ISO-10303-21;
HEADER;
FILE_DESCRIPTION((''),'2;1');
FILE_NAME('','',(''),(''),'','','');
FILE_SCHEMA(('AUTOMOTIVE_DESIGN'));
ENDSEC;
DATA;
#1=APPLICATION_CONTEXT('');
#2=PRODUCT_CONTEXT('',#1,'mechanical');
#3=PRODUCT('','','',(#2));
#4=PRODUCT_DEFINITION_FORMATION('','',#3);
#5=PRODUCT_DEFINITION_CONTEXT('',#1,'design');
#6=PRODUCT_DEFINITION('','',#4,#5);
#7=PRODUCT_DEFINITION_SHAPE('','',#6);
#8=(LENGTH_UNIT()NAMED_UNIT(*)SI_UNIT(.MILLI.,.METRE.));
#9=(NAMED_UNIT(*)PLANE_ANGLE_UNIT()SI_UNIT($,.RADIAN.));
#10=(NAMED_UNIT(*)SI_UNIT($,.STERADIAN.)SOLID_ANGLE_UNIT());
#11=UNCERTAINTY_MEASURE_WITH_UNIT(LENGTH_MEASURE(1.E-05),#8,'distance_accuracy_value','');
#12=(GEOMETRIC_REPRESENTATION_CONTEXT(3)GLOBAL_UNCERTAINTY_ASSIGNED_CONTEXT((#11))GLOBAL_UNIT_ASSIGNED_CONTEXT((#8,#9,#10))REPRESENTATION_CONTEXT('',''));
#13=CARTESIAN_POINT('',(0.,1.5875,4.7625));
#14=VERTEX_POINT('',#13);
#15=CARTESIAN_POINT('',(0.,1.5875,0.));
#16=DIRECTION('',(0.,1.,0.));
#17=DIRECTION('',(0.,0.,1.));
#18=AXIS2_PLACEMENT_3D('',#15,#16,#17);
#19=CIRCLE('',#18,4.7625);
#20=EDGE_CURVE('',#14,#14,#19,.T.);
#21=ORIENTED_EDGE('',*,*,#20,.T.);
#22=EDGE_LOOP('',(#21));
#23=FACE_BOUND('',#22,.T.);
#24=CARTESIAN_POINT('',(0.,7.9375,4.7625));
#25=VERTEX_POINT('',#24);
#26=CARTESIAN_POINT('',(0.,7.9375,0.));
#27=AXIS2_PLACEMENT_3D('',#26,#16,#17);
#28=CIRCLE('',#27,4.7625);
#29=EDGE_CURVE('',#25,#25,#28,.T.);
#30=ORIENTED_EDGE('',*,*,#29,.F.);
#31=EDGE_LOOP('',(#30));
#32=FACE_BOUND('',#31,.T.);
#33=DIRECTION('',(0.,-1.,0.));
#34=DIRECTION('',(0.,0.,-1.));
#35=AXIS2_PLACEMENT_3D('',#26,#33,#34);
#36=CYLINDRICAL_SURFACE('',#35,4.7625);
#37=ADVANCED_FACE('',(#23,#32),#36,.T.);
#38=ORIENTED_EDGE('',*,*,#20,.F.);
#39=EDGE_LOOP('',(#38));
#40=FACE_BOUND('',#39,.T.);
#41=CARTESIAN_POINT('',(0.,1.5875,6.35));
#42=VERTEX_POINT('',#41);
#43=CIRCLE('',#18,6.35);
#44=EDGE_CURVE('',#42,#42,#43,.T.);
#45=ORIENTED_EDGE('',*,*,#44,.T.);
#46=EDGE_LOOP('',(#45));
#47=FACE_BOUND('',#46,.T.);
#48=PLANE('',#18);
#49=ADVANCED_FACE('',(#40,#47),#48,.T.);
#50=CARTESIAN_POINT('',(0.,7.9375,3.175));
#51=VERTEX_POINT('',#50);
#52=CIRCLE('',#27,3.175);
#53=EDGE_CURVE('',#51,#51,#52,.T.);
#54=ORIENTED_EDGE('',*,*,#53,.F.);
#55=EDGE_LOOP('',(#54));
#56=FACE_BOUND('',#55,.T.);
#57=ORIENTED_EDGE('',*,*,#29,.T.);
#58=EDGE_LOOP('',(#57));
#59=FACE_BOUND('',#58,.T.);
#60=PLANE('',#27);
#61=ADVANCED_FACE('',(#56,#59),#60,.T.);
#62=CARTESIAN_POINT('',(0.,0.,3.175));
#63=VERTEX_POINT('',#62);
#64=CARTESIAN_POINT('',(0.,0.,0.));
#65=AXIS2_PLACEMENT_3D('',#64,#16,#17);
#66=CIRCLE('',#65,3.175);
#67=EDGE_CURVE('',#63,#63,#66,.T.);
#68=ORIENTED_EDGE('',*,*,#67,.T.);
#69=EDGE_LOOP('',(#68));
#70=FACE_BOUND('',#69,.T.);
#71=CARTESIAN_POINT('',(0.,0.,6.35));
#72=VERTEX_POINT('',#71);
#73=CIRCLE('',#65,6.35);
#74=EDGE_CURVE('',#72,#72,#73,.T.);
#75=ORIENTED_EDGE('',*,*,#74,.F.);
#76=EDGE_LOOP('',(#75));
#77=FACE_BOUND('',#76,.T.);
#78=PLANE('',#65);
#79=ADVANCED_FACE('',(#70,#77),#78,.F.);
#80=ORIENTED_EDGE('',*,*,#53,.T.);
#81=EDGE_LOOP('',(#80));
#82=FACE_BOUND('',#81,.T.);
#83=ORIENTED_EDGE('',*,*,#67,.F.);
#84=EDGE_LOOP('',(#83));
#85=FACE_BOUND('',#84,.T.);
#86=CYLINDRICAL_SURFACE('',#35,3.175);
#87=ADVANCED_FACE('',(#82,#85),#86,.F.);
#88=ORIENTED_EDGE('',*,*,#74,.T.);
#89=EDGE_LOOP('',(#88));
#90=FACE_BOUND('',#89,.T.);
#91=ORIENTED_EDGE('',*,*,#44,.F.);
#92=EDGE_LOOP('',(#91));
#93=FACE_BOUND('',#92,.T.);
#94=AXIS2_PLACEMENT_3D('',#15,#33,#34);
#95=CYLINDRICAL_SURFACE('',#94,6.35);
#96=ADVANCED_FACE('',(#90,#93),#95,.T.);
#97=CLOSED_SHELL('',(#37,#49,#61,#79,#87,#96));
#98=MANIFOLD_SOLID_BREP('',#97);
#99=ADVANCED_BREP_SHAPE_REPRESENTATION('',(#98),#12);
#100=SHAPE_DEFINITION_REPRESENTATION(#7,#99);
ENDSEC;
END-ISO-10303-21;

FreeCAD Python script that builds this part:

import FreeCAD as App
import Part
import Sketcher

V = App.Vector
Q = App.Units.Quantity

doc = App.newDocument("Part")
params = doc.addObject("Spreadsheet::Sheet", "Params")
for row, (alias, value) in enumerate([
    ("sketch1_diameter", "0.25 in"),
    ("sketch1_diameter2", "0.375 in"),
    ("pad1_length", "0.3125 in"),
    ("sketch2_diameter", "0.5 in"),
    ("sketch2_diameter2", "0.375 in"),
    ("pad2_length", "0.0625 in"),
], start=1):
    params.set(f"A{row}", alias)
    params.set(f"B{row}", "=" + value)
    params.setAlias(f"B{row}", alias)

body = doc.addObject("PartDesign::Body", "Body")

# Sketch on XZ plane
sketch1 = body.newObject("Sketcher::SketchObject", "Sketch")
sketch1.AttachmentSupport = (doc.getObject("XZ_Plane"), [""])
sketch1.MapMode = "FlatFace"
sketch1.addGeometry([
    Part.Circle(V(0, 0, 0), V(0, 0, 1), 4.8),
    Part.Circle(V(0, 0, 0), V(0, 0, 1), 3.2),
], False)
sketch1.addConstraint([
    Sketcher.Constraint("Coincident", 0, 3, -1, 1),
    Sketcher.Constraint("Coincident", 1, 3, -1, 1),
    Sketcher.Constraint("Diameter", 1, Q("0.25 in")),
    Sketcher.Constraint("Diameter", 0, Q("0.375 in")),
])
sketch1.setExpression("Constraints[2]", "Params.sketch1_diameter")
sketch1.setExpression("Constraints[3]", "Params.sketch1_diameter2")
pad1 = body.newObject("PartDesign::Pad", "Pad")
pad1.Profile = sketch1
pad1.setExpression("Length", "Params.pad1_length")
pad1.Reversed = True

# Sketch on XZ plane
sketch2 = body.newObject("Sketcher::SketchObject", "Sketch001")
sketch2.AttachmentSupport = (doc.getObject("XZ_Plane"), [""])
sketch2.MapMode = "FlatFace"
sketch2.addGeometry([
    Part.Circle(V(0, 0, 0), V(0, 0, 1), 6.3),
    Part.Circle(V(0, 0, 0), V(0, 0, 1), 4.8),
], False)
sketch2.addConstraint([
    Sketcher.Constraint("Coincident", 0, 3, -1, 1),
    Sketcher.Constraint("Coincident", 1, 3, -1, 1),
    Sketcher.Constraint("Diameter", 0, Q("0.5 in")),
    Sketcher.Constraint("Diameter", 1, Q("0.375 in")),
])
sketch2.setExpression("Constraints[2]", "Params.sketch2_diameter")
sketch2.setExpression("Constraints[3]", "Params.sketch2_diameter2")
pad2 = body.newObject("PartDesign::Pad", "Pad001")
pad2.Profile = sketch2
pad2.setExpression("Length", "Params.pad2_length")
pad2.Reversed = True

doc.recompute()
